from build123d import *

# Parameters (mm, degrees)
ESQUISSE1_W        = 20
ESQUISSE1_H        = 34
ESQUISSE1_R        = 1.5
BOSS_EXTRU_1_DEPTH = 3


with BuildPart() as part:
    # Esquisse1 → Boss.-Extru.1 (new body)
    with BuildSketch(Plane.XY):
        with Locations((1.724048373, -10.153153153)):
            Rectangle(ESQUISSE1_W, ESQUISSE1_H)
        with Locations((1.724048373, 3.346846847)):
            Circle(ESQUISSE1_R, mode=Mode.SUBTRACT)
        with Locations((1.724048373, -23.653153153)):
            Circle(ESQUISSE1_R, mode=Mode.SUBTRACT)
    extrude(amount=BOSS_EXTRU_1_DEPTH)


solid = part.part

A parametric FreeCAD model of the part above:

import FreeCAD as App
import Part
import Sketcher
from FreeCAD import Vector
Q = App.Units.Quantity

doc = App.newDocument("Part")
body = doc.addObject("PartDesign::Body", "Body")

# Sketch on XY plane
sketch1 = body.newObject("Sketcher::SketchObject", "Sketch")
sketch1.AttachmentSupport = (doc.getObject("XY_Plane"), [""])
sketch1.MapMode = "FlatFace"
sketch1.addGeometry(Part.LineSegment(Vector(-8.3, 6.8, 0), Vector(-8.3, -27.2, 0)), False)
sketch1.addGeometry(Part.LineSegment(Vector(-8.3, -27.2, 0), Vector(11.7, -27.2, 0)), False)
sketch1.addGeometry(Part.LineSegment(Vector(11.7, -27.2, 0), Vector(11.7, 6.8, 0)), False)
sketch1.addGeometry(Part.LineSegment(Vector(11.7, 6.8, 0), Vector(-8.3, 6.8, 0)), False)
sketch1.addGeometry(Part.Circle(Vector(1.7, -23.7, 0), Vector(0, 0, 1), 1.5), False)
sketch1.addGeometry(Part.Circle(Vector(1.7, 3.3, 0), Vector(0, 0, 1), 1.5), False)
sketch1.addConstraint(Sketcher.Constraint("Coincident", 0, 2, 1, 1))
sketch1.addConstraint(Sketcher.Constraint("Coincident", 1, 2, 2, 1))
sketch1.addConstraint(Sketcher.Constraint("Coincident", 2, 2, 3, 1))
sketch1.addConstraint(Sketcher.Constraint("Coincident", 3, 2, 0, 1))
sketch1.addConstraint(Sketcher.Constraint("Vertical", 0))
sketch1.addConstraint(Sketcher.Constraint("Horizontal", 1))
sketch1.addConstraint(Sketcher.Constraint("Vertical", 2))
sketch1.addConstraint(Sketcher.Constraint("Horizontal", 3))
sketch1.addConstraint(Sketcher.Constraint("Equal", 4, 5))
sketch1.addConstraint(Sketcher.Constraint("Vertical", 4, 3, 5, 3))
sketch1.addConstraint(Sketcher.Constraint("Diameter", 4, Q("3 mm")))
sketch1.addConstraint(Sketcher.Constraint("DistanceX", 1, 1, 1, 2, Q("20 mm")))
sketch1.addConstraint(Sketcher.Constraint("DistanceY", 0, 2, 0, 1, Q("34 mm")))
sketch1.addConstraint(Sketcher.Constraint("DistanceY", 4, 3, 5, 3, Q("27 mm")))
sketch1.addConstraint(Sketcher.Constraint("DistanceX", 0, 2, 4, 3, Q("10 mm")))
sketch1.addConstraint(Sketcher.Constraint("DistanceY", 0, 2, 4, 3, Q("3.5 mm")))
sketch1.addConstraint(Sketcher.Constraint("DistanceX", -1, 1, 4, 3, Q("1.724048 mm")))
sketch1.addConstraint(Sketcher.Constraint("DistanceY", 4, 3, -1, 1, Q("23.653153 mm")))
pad1 = body.newObject("PartDesign::Pad", "Pad")
pad1.Profile = sketch1
pad1.Length = 3

doc.recompute()
